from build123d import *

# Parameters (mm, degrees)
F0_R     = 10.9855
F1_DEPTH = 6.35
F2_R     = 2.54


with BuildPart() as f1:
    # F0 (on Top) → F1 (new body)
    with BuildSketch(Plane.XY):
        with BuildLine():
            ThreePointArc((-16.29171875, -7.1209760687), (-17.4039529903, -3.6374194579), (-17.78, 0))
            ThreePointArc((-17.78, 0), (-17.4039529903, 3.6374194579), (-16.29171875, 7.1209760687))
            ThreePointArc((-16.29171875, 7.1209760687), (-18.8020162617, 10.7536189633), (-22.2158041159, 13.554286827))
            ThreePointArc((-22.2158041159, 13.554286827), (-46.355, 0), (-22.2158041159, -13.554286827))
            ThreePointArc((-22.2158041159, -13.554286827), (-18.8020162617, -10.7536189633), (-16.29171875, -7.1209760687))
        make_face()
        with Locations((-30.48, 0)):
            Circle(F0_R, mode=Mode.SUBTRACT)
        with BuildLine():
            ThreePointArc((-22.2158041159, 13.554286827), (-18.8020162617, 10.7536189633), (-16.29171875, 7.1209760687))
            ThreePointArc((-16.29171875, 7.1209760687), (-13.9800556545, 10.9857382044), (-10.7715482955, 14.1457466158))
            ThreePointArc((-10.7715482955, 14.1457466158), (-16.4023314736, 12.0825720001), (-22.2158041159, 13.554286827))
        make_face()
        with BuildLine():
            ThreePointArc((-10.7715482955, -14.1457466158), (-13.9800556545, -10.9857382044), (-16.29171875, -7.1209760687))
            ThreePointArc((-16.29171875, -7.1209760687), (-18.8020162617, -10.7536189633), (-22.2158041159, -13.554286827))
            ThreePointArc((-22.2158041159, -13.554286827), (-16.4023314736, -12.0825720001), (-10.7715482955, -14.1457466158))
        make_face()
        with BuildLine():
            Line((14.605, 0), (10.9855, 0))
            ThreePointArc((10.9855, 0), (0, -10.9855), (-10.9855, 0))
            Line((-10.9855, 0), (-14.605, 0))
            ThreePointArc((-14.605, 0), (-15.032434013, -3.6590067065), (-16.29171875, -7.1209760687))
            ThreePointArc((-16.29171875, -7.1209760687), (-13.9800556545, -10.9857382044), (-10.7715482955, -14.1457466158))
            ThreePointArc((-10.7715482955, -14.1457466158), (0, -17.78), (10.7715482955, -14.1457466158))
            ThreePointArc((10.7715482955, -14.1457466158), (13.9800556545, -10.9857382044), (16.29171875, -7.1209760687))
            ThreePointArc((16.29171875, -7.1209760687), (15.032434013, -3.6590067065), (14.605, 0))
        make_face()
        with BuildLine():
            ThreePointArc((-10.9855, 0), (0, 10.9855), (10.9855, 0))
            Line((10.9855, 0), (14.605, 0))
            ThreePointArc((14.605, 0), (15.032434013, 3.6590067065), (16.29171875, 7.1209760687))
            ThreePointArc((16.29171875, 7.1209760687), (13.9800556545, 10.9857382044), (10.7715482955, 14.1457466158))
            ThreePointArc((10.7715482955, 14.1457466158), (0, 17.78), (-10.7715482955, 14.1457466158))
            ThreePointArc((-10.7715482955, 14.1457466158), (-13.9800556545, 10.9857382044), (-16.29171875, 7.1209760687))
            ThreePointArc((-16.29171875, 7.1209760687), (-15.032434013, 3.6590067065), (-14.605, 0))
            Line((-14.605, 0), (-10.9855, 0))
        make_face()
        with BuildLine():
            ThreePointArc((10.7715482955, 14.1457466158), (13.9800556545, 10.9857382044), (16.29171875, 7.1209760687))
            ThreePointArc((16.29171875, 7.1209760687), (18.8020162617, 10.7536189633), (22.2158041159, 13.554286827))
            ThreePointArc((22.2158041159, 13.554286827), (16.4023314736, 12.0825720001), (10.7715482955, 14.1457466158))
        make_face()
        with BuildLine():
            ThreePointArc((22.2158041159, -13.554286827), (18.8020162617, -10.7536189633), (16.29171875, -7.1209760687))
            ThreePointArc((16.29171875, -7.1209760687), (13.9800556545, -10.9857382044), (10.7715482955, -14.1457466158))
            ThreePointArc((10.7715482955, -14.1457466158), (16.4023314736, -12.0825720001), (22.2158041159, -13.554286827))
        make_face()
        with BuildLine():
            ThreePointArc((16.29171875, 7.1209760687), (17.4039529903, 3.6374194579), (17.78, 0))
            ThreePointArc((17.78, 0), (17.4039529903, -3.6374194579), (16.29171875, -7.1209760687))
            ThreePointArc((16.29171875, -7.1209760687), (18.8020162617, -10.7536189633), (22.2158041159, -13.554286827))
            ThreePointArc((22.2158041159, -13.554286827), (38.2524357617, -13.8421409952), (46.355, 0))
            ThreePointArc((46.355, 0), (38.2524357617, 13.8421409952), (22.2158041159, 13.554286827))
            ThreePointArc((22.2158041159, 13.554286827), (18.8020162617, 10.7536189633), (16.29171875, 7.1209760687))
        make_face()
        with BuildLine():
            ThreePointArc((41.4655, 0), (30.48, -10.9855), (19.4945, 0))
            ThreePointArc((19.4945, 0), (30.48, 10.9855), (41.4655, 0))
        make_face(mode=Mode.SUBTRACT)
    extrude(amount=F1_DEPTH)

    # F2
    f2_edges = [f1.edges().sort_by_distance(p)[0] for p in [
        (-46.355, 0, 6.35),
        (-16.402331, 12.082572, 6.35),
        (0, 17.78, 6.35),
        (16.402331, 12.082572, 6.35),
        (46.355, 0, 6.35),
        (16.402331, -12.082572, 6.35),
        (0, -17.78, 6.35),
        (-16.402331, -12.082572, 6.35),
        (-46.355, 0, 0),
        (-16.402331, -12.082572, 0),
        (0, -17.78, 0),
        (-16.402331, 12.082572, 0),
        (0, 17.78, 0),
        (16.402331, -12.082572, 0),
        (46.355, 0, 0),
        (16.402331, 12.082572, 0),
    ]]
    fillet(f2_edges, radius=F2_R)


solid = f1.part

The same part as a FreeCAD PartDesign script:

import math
import FreeCAD as App
import Part
import Sketcher
from FreeCAD import Vector
Q = App.Units.Quantity


def edges_at(feature, points):
    """Names of the edges that pass closest to the given points."""
    edges = feature.Shape.Edges
    near = lambda p: min(range(len(edges)), key=lambda i: edges[i].distToShape(Part.Vertex(*p))[0])
    return sorted({f"Edge{near(p) + 1}" for p in points})

doc = App.newDocument("Part")
params = doc.addObject("Spreadsheet::Sheet", "Params")
for row, (alias, value) in enumerate([
    ("sketch1_radius", "0.4 in"),
    ("sketch1_radius2", "0.7 in"),
    ("sketch1_diameter", "0.865 in"),
    ("sketch1_radius3", "0.625 in"),
    ("pad1_length", "0.25 in"),
    ("fillet_radius", "0.1 in"),
], start=1):
    params.set(f"A{row}", alias)
    params.set(f"B{row}", "=" + value)
    params.setAlias(f"B{row}", alias)

body = doc.addObject("PartDesign::Body", "Body")

# Sketch on XY plane
sketch1 = body.newObject("Sketcher::SketchObject", "Sketch")
sketch1.AttachmentSupport = (doc.getObject("XY_Plane"), [""])
sketch1.MapMode = "FlatFace"
sketch1.addGeometry([
    Part.ArcOfCircle(Part.Circle(Vector(-16.926719, 22.22903, 0), Vector(0, 0, 1), 10.16), math.radians(-121.371116), math.radians(-52.71185)),  # 0
    Part.ArcOfCircle(Part.Circle(Vector(-30.48, 0, 0), Vector(0, 0, 1), 15.875), math.radians(58.628884), math.radians(301.371116)),  # 1
    Part.ArcOfCircle(Part.Circle(Vector(-16.926719, -22.22903, 0), Vector(0, 0, 1), 10.16), math.radians(52.71185), math.radians(121.371116)),  # 2
    Part.ArcOfCircle(Part.Circle(Vector(0, 0, 0), Vector(0, 0, 1), 17.78), math.radians(-127.28815), math.radians(-52.71185)),  # 3
    Part.ArcOfCircle(Part.Circle(Vector(16.926719, -22.22903, 0), Vector(0, 0, 1), 10.16), math.radians(58.628884), math.radians(127.28815)),  # 4
    Part.ArcOfCircle(Part.Circle(Vector(30.48, 0, 0), Vector(0, 0, 1), 15.875), math.radians(-121.371116), math.radians(0)),  # 5
    Part.ArcOfCircle(Part.Circle(Vector(30.48, 0, 0), Vector(0, 0, 1), 15.875), math.radians(0), math.radians(121.371116)),  # 6
    Part.ArcOfCircle(Part.Circle(Vector(16.926719, 22.22903, 0), Vector(0, 0, 1), 10.16), math.radians(-127.28815), math.radians(-58.628884)),  # 7
    Part.ArcOfCircle(Part.Circle(Vector(0, 0, 0), Vector(0, 0, 1), 17.78), math.radians(52.71185), math.radians(127.28815)),  # 8
    Part.Circle(Vector(-30.48, 0, 0), Vector(0, 0, 1), 10.9855),  # 9
    Part.ArcOfCircle(Part.Circle(Vector(0, 0, 0), Vector(0, 0, 1), 17.78), math.radians(180), math.radians(203.609742)),  # 10
    Part.ArcOfCircle(Part.Circle(Vector(0, 0, 0), Vector(0, 0, 1), 17.78), math.radians(156.390258), math.radians(180)),  # 11
    Part.ArcOfCircle(Part.Circle(Vector(-30.48, 0, 0), Vector(0, 0, 1), 15.875), math.radians(0), math.radians(26.65168)),  # 12
    Part.ArcOfCircle(Part.Circle(Vector(-30.48, 0, 0), Vector(0, 0, 1), 15.875), math.radians(-26.65168), math.radians(0)),  # 13
    Part.Circle(Vector(0, 0, 0), Vector(0, 0, 1), 10.9855),  # 14
    Part.ArcOfCircle(Part.Circle(Vector(30.48, 0, 0), Vector(0, 0, 1), 15.875), math.radians(180), math.radians(206.65168)),  # 15
    Part.ArcOfCircle(Part.Circle(Vector(30.48, 0, 0), Vector(0, 0, 1), 15.875), math.radians(153.34832), math.radians(180)),  # 16
    Part.ArcOfCircle(Part.Circle(Vector(0, 0, 0), Vector(0, 0, 1), 17.78), math.radians(0), math.radians(23.609742)),  # 17
    Part.ArcOfCircle(Part.Circle(Vector(0, 0, 0), Vector(0, 0, 1), 17.78), math.radians(-23.609742), math.radians(0)),  # 18
    Part.Circle(Vector(30.48, 0, 0), Vector(0, 0, 1), 10.9855),  # 19
], False)
sketch1.addConstraint([
    Sketcher.Constraint("Tangent", 0, 1, 1, 1),
    Sketcher.Constraint("Tangent", 1, 2, 2, 2),
    Sketcher.Constraint("Tangent", 2, 1, 3, 1),
    Sketcher.Constraint("Tangent", 3, 2, 4, 2),
    Sketcher.Constraint("Tangent", 4, 1, 5, 1),
    Sketcher.Constraint("Tangent", 5, 2, 6, 1),
    Sketcher.Constraint("Tangent", 6, 2, 7, 2),
    Sketcher.Constraint("Tangent", 7, 1, 8, 1),
    Sketcher.Constraint("Tangent", 8, 2, 0, 2),
    Sketcher.Constraint("Tangent", 10, 1, 11, 2),
    Sketcher.Constraint("Coincident", 11, 1, 12, 2),
    Sketcher.Constraint("Tangent", 12, 1, 13, 2),
    Sketcher.Constraint("Coincident", 13, 1, 10, 2),
    Sketcher.Constraint("Tangent", 15, 1, 16, 2),
    Sketcher.Constraint("Coincident", 16, 1, 17, 2),
    Sketcher.Constraint("Tangent", 17, 1, 18, 2),
    Sketcher.Constraint("Coincident", 18, 1, 15, 2),
    Sketcher.Constraint("Coincident", 3, 3, -1, 1),
    Sketcher.Constraint("Coincident", 8, 3, -1, 1),
    Sketcher.Constraint("Coincident", 10, 3, -1, 1),
    Sketcher.Constraint("Coincident", 14, 3, -1, 1),
    Sketcher.Constraint("Coincident", 17, 3, -1, 1),
    Sketcher.Constraint("Coincident", 9, 3, 1, 3),
    Sketcher.Constraint("Coincident", 12, 3, 1, 3),
    Sketcher.Constraint("Coincident", 15, 3, 5, 3),
    Sketcher.Constraint("Coincident", 19, 3, 5, 3),
    Sketcher.Constraint("Equal", 0, 2),
    Sketcher.Constraint("Equal", 2, 4),
    Sketcher.Constraint("Equal", 1, 5),
    Sketcher.Constraint("Equal", 5, 6),
    Sketcher.Constraint("Equal", 4, 7),
    Sketcher.Constraint("Equal", 3, 8),
    Sketcher.Constraint("Equal", 8, 10),
    Sketcher.Constraint("Equal", 10, 11),
    Sketcher.Constraint("Equal", 6, 12),
    Sketcher.Constraint("Equal", 12, 13),
    Sketcher.Constraint("Equal", 9, 14),
    Sketcher.Constraint("Equal", 13, 15),
    Sketcher.Constraint("Equal", 15, 16),
    Sketcher.Constraint("Equal", 11, 17),
    Sketcher.Constraint("Equal", 17, 18),
    Sketcher.Constraint("Equal", 14, 19),
    Sketcher.Constraint("Symmetric", 1, 3, 5, 3, -1, 1),
    Sketcher.Constraint("PointOnObject", 1, 3, -1),
    Sketcher.Constraint("PointOnObject", 5, 2, -1),
    Sketcher.Constraint("PointOnObject", 10, 1, -1),
    Sketcher.Constraint("PointOnObject", 12, 1, -1),
    Sketcher.Constraint("PointOnObject", 15, 1, -1),
    Sketcher.Constraint("PointOnObject", 17, 1, -1),
    Sketcher.Constraint("Radius", 0, Q("0.4 in")),
    Sketcher.Constraint("Radius", 3, Q("0.7 in")),
    Sketcher.Constraint("Diameter", 9, Q("0.865 in")),
    Sketcher.Constraint("Radius", 1, Q("0.625 in")),
    Sketcher.Constraint("DistanceX", 1, 3, -1, 1, Q("1.2 in")),
])
sketch1.setExpression("Constraints[49]", "Params.sketch1_radius")
sketch1.setExpression("Constraints[50]", "Params.sketch1_radius2")
sketch1.setExpression("Constraints[51]", "Params.sketch1_diameter")
sketch1.setExpression("Constraints[52]", "Params.sketch1_radius3")
pad1 = body.newObject("PartDesign::Pad", "Pad")
pad1.Profile = sketch1
pad1.setExpression("Length", "Params.pad1_length")
doc.recompute()

fillet = body.newObject("PartDesign::Fillet", "Fillet")
fillet.Base = (pad1, edges_at(pad1, [
    (-46.355, 0, 6.35),
    (-16.402, 12.083, 6.35),
    (0, 17.78, 6.35),
    (16.402, 12.083, 6.35),
    (46.355, 0, 3.175),
    (16.402, -12.083, 6.35),
    (0, -17.78, 6.35),
    (-16.402, -12.083, 6.35),
    (-46.355, 0, 0),
    (-16.402, -12.083, 0),
    (0, -17.78, 0),
    (-16.402, 12.083, 0),
    (0, 17.78, 0),
    (16.402, -12.083, 0),
    (46.355, 0, 3.175),
    (16.402, 12.083, 0),
]))
fillet.setExpression("Radius", "Params.fillet_radius")

doc.recompute()
